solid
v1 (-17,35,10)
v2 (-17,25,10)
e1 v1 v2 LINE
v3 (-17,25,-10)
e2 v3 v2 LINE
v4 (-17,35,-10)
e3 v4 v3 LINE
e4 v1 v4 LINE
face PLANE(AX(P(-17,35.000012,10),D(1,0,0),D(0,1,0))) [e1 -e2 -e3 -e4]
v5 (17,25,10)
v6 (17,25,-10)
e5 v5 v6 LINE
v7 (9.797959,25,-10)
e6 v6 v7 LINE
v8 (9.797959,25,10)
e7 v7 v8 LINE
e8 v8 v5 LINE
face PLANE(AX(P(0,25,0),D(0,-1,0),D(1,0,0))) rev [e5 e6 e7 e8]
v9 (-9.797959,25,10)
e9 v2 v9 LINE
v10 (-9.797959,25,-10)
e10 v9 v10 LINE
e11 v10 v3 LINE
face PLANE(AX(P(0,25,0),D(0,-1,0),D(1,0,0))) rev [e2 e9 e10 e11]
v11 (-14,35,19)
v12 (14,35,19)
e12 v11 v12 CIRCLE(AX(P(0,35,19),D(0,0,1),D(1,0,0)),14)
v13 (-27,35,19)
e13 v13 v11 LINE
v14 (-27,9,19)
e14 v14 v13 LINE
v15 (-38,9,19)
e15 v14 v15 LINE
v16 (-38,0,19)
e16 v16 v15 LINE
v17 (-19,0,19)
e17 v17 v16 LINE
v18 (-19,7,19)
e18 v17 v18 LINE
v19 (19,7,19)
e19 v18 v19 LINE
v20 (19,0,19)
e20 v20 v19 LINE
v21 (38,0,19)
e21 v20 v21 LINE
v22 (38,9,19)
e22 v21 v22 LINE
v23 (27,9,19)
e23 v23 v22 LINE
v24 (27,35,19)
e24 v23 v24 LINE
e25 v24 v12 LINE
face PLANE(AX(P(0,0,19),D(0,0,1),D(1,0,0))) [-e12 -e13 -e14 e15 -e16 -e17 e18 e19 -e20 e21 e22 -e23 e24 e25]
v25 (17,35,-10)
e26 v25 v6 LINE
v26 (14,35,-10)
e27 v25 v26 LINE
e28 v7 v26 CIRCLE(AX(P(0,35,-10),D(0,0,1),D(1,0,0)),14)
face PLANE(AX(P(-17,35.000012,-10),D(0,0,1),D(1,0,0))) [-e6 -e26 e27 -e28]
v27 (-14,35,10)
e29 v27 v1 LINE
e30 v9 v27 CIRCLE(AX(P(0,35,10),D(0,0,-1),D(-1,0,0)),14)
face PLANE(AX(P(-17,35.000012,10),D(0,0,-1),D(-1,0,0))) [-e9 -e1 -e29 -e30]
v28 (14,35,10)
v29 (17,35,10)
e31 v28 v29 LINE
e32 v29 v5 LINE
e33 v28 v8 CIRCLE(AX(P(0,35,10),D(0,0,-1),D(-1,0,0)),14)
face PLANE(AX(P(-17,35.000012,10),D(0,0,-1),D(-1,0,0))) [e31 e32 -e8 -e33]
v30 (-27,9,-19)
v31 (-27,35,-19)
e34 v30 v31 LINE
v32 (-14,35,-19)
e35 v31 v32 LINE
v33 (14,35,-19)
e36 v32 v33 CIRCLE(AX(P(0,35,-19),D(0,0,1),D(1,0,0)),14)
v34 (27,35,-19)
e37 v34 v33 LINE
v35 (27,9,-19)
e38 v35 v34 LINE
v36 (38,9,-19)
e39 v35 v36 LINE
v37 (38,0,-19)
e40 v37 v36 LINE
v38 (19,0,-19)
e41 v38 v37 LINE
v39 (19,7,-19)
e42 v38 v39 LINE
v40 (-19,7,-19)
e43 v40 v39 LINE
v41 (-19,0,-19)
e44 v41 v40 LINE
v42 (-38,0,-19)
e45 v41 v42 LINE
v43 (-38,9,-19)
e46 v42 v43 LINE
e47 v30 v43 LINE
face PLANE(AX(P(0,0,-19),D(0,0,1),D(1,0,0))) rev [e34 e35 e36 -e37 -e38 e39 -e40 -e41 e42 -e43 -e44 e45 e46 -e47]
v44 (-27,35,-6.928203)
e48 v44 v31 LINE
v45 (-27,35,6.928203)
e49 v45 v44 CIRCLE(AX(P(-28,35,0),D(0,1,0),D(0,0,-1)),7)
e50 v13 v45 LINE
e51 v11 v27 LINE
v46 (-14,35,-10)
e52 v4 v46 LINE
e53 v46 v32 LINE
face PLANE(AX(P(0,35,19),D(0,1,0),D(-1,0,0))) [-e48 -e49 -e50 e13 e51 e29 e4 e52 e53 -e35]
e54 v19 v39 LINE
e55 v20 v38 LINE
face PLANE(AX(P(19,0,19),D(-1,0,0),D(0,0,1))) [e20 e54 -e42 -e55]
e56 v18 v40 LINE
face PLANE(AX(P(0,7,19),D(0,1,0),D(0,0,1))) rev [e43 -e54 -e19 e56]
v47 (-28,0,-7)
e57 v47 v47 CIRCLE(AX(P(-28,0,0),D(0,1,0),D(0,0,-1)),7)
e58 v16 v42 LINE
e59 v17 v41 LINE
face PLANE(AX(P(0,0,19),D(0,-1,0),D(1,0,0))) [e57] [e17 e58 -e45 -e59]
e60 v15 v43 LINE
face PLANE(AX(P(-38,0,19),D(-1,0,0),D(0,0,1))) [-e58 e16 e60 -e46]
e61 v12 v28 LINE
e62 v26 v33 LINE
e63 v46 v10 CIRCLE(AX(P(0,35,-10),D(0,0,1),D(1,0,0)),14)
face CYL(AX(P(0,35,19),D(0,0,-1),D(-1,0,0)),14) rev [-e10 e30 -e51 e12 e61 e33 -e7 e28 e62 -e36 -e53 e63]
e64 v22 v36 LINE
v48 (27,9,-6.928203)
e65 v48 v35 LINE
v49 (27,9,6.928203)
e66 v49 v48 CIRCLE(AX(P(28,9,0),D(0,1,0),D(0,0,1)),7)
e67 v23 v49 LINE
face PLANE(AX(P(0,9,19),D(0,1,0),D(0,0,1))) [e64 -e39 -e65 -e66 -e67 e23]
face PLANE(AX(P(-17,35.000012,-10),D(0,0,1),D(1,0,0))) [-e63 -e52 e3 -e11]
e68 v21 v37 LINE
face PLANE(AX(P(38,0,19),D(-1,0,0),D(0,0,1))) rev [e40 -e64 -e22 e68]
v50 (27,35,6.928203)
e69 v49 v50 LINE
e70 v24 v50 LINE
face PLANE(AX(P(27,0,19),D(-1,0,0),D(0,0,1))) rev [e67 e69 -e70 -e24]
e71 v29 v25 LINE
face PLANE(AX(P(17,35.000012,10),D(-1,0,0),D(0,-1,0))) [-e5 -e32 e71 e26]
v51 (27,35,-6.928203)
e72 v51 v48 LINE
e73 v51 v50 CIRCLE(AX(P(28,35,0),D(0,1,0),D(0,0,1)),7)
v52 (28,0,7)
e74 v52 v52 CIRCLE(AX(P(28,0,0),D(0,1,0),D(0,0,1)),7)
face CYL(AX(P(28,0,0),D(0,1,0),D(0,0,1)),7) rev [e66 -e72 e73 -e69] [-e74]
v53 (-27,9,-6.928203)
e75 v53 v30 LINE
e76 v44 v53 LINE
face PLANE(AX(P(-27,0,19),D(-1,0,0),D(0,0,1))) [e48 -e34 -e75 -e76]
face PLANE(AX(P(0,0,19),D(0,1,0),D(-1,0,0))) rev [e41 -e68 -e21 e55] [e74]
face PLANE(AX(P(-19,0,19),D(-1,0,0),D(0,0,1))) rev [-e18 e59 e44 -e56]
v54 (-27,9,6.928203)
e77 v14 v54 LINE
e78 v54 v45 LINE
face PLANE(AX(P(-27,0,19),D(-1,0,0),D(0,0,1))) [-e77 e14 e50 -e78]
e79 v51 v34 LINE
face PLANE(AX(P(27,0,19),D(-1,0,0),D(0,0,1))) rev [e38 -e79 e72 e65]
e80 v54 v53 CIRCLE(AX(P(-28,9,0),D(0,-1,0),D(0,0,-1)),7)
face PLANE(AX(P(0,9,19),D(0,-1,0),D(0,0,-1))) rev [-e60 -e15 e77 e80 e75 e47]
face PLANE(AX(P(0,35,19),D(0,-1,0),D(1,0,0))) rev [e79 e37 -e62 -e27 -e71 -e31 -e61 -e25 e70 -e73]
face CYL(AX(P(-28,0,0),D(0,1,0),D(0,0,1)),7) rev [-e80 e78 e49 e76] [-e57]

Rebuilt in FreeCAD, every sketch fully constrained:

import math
import FreeCAD as App
import Part
import Sketcher
Q = App.Units.Quantity


def add_polygon(sketch, points):
    """Adds a closed chain of lines whose ends are joined by coincident constraints."""
    first, n = sketch.GeometryCount, len(points)
    for a, b in zip(points, points[1:] + points[:1]):
        sketch.addGeometry(Part.LineSegment(App.Vector(*a, 0), App.Vector(*b, 0)), False)
    for i in range(n):
        sketch.addConstraint(Sketcher.Constraint("Coincident", first + i, 2, first + (i + 1) % n, 1))

doc = App.newDocument("Part")
body = doc.addObject("PartDesign::Body", "Body")

sketch1 = body.newObject("Sketcher::SketchObject", "Sketch")
sketch1.AttachmentSupport = (doc.getObject("XY_Plane"), [""])
sketch1.MapMode = "FlatFace"
sketch1.addGeometry(Part.ArcOfCircle(Part.Circle(App.Vector(0, 35, 0), App.Vector(0, 0, 1), 14), math.radians(180), math.radians(360)), False)
sketch1.addGeometry(Part.LineSegment(App.Vector(-14, 35, 0), App.Vector(-27, 35, 0)), False)
sketch1.addGeometry(Part.LineSegment(App.Vector(-27, 35, 0), App.Vector(-27, 9, 0)), False)
sketch1.addGeometry(Part.LineSegment(App.Vector(-27, 9, 0), App.Vector(-38, 9, 0)), False)
sketch1.addGeometry(Part.LineSegment(App.Vector(-38, 9, 0), App.Vector(-38, 0, 0)), False)
sketch1.addGeometry(Part.LineSegment(App.Vector(-38, 0, 0), App.Vector(-19, 0, 0)), False)
sketch1.addGeometry(Part.LineSegment(App.Vector(-19, 0, 0), App.Vector(-19, 7, 0)), False)
sketch1.addGeometry(Part.LineSegment(App.Vector(-19, 7, 0), App.Vector(19, 7, 0)), False)
sketch1.addGeometry(Part.LineSegment(App.Vector(19, 7, 0), App.Vector(19, 0, 0)), False)
sketch1.addGeometry(Part.LineSegment(App.Vector(19, 0, 0), App.Vector(38, 0, 0)), False)
sketch1.addGeometry(Part.LineSegment(App.Vector(38, 0, 0), App.Vector(38, 9, 0)), False)
sketch1.addGeometry(Part.LineSegment(App.Vector(38, 9, 0), App.Vector(27, 9, 0)), False)
sketch1.addGeometry(Part.LineSegment(App.Vector(27, 9, 0), App.Vector(27, 35, 0)), False)
sketch1.addGeometry(Part.LineSegment(App.Vector(27, 35, 0), App.Vector(14, 35, 0)), False)
sketch1.addConstraint(Sketcher.Constraint("Coincident", 0, 1, 1, 1))
sketch1.addConstraint(Sketcher.Constraint("Coincident", 1, 2, 2, 1))
sketch1.addConstraint(Sketcher.Constraint("Coincident", 2, 2, 3, 1))
sketch1.addConstraint(Sketcher.Constraint("Coincident", 3, 2, 4, 1))
sketch1.addConstraint(Sketcher.Constraint("Coincident", 4, 2, 5, 1))
sketch1.addConstraint(Sketcher.Constraint("Coincident", 5, 2, 6, 1))
sketch1.addConstraint(Sketcher.Constraint("Coincident", 6, 2, 7, 1))
sketch1.addConstraint(Sketcher.Constraint("Coincident", 7, 2, 8, 1))
sketch1.addConstraint(Sketcher.Constraint("Coincident", 8, 2, 9, 1))
sketch1.addConstraint(Sketcher.Constraint("Coincident", 9, 2, 10, 1))
sketch1.addConstraint(Sketcher.Constraint("Coincident", 10, 2, 11, 1))
sketch1.addConstraint(Sketcher.Constraint("Coincident", 11, 2, 12, 1))
sketch1.addConstraint(Sketcher.Constraint("Coincident", 12, 2, 13, 1))
sketch1.addConstraint(Sketcher.Constraint("Coincident", 13, 2, 0, 2))
sketch1.addConstraint(Sketcher.Constraint("Horizontal", 1))
sketch1.addConstraint(Sketcher.Constraint("Vertical", 2))
sketch1.addConstraint(Sketcher.Constraint("Horizontal", 3))
sketch1.addConstraint(Sketcher.Constraint("Vertical", 4))
sketch1.addConstraint(Sketcher.Constraint("Horizontal", 5))
sketch1.addConstraint(Sketcher.Constraint("Vertical", 6))
sketch1.addConstraint(Sketcher.Constraint("Horizontal", 7))
sketch1.addConstraint(Sketcher.Constraint("Vertical", 8))
sketch1.addConstraint(Sketcher.Constraint("Horizontal", 9))
sketch1.addConstraint(Sketcher.Constraint("Vertical", 10))
sketch1.addConstraint(Sketcher.Constraint("Horizontal", 11))
sketch1.addConstraint(Sketcher.Constraint("Vertical", 12))
sketch1.addConstraint(Sketcher.Constraint("Horizontal", 13))
sketch1.addConstraint(Sketcher.Constraint("Symmetric", 5, 2, 8, 2, -1, 1))
sketch1.addConstraint(Sketcher.Constraint("Symmetric", 4, 2, 9, 2, -2))
sketch1.addConstraint(Sketcher.Constraint("Symmetric", 2, 2, 11, 2, -2))
sketch1.addConstraint(Sketcher.Constraint("Symmetric", 0, 1, 13, 2, -2))
sketch1.addConstraint(Sketcher.Constraint("Radius", 0, Q("14 mm")))
sketch1.addConstraint(Sketcher.Constraint("DistanceX", 1, 2, 1, 1, Q("13 mm")))
sketch1.addConstraint(Sketcher.Constraint("DistanceX", 3, 2, 3, 1, Q("11 mm")))
sketch1.addConstraint(Sketcher.Constraint("DistanceX", 5, 1, 5, 2, Q("19 mm")))
sketch1.addConstraint(Sketcher.Constraint("DistanceY", 2, 2, 2, 1, Q("26 mm")))
sketch1.addConstraint(Sketcher.Constraint("DistanceY", 4, 2, 4, 1, Q("9 mm")))
sketch1.addConstraint(Sketcher.Constraint("DistanceY", 6, 1, 6, 2, Q("7 mm")))
sketch1.addConstraint(Sketcher.Constraint("DistanceY", -1, 1, 0, 3, Q("35 mm")))
pad1 = body.newObject("PartDesign::Pad", "Pad")
pad1.Profile = sketch1
pad1.Length = 38
pad1.Midplane = True

sketch2 = body.newObject("Sketcher::SketchObject", "Sketch001")
sketch2.AttachmentSupport = (doc.getObject("XZ_Plane"), [""])
sketch2.MapMode = "FlatFace"
sketch2.AttachmentOffset = App.Placement(App.Vector(0, 0, -9), App.Rotation())
sketch2.addGeometry(Part.Circle(App.Vector(28, 0, 0), App.Vector(0, 0, 1), 7), False)
sketch2.addGeometry(Part.Circle(App.Vector(-28, 0, 0), App.Vector(0, 0, 1), 7), False)
sketch2.addConstraint(Sketcher.Constraint("Equal", 0, 1))
sketch2.addConstraint(Sketcher.Constraint("Symmetric", 0, 3, 1, 3, -1, 1))
sketch2.addConstraint(Sketcher.Constraint("PointOnObject", 0, 3, -1))
sketch2.addConstraint(Sketcher.Constraint("Diameter", 0, Q("14 mm")))
sketch2.addConstraint(Sketcher.Constraint("DistanceX", -1, 1, 0, 3, Q("28 mm")))
pocket1 = body.newObject("PartDesign::Pocket", "Pocket")
pocket1.Profile = sketch2
pocket1.Type = "ThroughAll"
pocket1.Midplane = True

sketch3 = body.newObject("Sketcher::SketchObject", "Sketch002")
sketch3.AttachmentSupport = (doc.getObject("XZ_Plane"), [""])
sketch3.MapMode = "FlatFace"
sketch3.AttachmentOffset = App.Placement(App.Vector(0, 0, -35), App.Rotation())
add_polygon(sketch3, [(-17, -10), (-17, 10), (17, 10), (17, -10)])
sketch3.addConstraint(Sketcher.Constraint("Vertical", 0))
sketch3.addConstraint(Sketcher.Constraint("Horizontal", 1))
sketch3.addConstraint(Sketcher.Constraint("Vertical", 2))
sketch3.addConstraint(Sketcher.Constraint("Horizontal", 3))
sketch3.addConstraint(Sketcher.Constraint("Symmetric", 0, 2, 2, 2, -1, 1))
sketch3.addConstraint(Sketcher.Constraint("DistanceX", 1, 1, 1, 2, Q("34 mm")))
sketch3.addConstraint(Sketcher.Constraint("DistanceY", 0, 1, 0, 2, Q("20 mm")))
pocket2 = body.newObject("PartDesign::Pocket", "Pocket001")
pocket2.Profile = sketch3
pocket2.Type = "TwoLengths"
pocket2.Length = 56.045436
pocket2.Length2 = 10

doc.recompute()
